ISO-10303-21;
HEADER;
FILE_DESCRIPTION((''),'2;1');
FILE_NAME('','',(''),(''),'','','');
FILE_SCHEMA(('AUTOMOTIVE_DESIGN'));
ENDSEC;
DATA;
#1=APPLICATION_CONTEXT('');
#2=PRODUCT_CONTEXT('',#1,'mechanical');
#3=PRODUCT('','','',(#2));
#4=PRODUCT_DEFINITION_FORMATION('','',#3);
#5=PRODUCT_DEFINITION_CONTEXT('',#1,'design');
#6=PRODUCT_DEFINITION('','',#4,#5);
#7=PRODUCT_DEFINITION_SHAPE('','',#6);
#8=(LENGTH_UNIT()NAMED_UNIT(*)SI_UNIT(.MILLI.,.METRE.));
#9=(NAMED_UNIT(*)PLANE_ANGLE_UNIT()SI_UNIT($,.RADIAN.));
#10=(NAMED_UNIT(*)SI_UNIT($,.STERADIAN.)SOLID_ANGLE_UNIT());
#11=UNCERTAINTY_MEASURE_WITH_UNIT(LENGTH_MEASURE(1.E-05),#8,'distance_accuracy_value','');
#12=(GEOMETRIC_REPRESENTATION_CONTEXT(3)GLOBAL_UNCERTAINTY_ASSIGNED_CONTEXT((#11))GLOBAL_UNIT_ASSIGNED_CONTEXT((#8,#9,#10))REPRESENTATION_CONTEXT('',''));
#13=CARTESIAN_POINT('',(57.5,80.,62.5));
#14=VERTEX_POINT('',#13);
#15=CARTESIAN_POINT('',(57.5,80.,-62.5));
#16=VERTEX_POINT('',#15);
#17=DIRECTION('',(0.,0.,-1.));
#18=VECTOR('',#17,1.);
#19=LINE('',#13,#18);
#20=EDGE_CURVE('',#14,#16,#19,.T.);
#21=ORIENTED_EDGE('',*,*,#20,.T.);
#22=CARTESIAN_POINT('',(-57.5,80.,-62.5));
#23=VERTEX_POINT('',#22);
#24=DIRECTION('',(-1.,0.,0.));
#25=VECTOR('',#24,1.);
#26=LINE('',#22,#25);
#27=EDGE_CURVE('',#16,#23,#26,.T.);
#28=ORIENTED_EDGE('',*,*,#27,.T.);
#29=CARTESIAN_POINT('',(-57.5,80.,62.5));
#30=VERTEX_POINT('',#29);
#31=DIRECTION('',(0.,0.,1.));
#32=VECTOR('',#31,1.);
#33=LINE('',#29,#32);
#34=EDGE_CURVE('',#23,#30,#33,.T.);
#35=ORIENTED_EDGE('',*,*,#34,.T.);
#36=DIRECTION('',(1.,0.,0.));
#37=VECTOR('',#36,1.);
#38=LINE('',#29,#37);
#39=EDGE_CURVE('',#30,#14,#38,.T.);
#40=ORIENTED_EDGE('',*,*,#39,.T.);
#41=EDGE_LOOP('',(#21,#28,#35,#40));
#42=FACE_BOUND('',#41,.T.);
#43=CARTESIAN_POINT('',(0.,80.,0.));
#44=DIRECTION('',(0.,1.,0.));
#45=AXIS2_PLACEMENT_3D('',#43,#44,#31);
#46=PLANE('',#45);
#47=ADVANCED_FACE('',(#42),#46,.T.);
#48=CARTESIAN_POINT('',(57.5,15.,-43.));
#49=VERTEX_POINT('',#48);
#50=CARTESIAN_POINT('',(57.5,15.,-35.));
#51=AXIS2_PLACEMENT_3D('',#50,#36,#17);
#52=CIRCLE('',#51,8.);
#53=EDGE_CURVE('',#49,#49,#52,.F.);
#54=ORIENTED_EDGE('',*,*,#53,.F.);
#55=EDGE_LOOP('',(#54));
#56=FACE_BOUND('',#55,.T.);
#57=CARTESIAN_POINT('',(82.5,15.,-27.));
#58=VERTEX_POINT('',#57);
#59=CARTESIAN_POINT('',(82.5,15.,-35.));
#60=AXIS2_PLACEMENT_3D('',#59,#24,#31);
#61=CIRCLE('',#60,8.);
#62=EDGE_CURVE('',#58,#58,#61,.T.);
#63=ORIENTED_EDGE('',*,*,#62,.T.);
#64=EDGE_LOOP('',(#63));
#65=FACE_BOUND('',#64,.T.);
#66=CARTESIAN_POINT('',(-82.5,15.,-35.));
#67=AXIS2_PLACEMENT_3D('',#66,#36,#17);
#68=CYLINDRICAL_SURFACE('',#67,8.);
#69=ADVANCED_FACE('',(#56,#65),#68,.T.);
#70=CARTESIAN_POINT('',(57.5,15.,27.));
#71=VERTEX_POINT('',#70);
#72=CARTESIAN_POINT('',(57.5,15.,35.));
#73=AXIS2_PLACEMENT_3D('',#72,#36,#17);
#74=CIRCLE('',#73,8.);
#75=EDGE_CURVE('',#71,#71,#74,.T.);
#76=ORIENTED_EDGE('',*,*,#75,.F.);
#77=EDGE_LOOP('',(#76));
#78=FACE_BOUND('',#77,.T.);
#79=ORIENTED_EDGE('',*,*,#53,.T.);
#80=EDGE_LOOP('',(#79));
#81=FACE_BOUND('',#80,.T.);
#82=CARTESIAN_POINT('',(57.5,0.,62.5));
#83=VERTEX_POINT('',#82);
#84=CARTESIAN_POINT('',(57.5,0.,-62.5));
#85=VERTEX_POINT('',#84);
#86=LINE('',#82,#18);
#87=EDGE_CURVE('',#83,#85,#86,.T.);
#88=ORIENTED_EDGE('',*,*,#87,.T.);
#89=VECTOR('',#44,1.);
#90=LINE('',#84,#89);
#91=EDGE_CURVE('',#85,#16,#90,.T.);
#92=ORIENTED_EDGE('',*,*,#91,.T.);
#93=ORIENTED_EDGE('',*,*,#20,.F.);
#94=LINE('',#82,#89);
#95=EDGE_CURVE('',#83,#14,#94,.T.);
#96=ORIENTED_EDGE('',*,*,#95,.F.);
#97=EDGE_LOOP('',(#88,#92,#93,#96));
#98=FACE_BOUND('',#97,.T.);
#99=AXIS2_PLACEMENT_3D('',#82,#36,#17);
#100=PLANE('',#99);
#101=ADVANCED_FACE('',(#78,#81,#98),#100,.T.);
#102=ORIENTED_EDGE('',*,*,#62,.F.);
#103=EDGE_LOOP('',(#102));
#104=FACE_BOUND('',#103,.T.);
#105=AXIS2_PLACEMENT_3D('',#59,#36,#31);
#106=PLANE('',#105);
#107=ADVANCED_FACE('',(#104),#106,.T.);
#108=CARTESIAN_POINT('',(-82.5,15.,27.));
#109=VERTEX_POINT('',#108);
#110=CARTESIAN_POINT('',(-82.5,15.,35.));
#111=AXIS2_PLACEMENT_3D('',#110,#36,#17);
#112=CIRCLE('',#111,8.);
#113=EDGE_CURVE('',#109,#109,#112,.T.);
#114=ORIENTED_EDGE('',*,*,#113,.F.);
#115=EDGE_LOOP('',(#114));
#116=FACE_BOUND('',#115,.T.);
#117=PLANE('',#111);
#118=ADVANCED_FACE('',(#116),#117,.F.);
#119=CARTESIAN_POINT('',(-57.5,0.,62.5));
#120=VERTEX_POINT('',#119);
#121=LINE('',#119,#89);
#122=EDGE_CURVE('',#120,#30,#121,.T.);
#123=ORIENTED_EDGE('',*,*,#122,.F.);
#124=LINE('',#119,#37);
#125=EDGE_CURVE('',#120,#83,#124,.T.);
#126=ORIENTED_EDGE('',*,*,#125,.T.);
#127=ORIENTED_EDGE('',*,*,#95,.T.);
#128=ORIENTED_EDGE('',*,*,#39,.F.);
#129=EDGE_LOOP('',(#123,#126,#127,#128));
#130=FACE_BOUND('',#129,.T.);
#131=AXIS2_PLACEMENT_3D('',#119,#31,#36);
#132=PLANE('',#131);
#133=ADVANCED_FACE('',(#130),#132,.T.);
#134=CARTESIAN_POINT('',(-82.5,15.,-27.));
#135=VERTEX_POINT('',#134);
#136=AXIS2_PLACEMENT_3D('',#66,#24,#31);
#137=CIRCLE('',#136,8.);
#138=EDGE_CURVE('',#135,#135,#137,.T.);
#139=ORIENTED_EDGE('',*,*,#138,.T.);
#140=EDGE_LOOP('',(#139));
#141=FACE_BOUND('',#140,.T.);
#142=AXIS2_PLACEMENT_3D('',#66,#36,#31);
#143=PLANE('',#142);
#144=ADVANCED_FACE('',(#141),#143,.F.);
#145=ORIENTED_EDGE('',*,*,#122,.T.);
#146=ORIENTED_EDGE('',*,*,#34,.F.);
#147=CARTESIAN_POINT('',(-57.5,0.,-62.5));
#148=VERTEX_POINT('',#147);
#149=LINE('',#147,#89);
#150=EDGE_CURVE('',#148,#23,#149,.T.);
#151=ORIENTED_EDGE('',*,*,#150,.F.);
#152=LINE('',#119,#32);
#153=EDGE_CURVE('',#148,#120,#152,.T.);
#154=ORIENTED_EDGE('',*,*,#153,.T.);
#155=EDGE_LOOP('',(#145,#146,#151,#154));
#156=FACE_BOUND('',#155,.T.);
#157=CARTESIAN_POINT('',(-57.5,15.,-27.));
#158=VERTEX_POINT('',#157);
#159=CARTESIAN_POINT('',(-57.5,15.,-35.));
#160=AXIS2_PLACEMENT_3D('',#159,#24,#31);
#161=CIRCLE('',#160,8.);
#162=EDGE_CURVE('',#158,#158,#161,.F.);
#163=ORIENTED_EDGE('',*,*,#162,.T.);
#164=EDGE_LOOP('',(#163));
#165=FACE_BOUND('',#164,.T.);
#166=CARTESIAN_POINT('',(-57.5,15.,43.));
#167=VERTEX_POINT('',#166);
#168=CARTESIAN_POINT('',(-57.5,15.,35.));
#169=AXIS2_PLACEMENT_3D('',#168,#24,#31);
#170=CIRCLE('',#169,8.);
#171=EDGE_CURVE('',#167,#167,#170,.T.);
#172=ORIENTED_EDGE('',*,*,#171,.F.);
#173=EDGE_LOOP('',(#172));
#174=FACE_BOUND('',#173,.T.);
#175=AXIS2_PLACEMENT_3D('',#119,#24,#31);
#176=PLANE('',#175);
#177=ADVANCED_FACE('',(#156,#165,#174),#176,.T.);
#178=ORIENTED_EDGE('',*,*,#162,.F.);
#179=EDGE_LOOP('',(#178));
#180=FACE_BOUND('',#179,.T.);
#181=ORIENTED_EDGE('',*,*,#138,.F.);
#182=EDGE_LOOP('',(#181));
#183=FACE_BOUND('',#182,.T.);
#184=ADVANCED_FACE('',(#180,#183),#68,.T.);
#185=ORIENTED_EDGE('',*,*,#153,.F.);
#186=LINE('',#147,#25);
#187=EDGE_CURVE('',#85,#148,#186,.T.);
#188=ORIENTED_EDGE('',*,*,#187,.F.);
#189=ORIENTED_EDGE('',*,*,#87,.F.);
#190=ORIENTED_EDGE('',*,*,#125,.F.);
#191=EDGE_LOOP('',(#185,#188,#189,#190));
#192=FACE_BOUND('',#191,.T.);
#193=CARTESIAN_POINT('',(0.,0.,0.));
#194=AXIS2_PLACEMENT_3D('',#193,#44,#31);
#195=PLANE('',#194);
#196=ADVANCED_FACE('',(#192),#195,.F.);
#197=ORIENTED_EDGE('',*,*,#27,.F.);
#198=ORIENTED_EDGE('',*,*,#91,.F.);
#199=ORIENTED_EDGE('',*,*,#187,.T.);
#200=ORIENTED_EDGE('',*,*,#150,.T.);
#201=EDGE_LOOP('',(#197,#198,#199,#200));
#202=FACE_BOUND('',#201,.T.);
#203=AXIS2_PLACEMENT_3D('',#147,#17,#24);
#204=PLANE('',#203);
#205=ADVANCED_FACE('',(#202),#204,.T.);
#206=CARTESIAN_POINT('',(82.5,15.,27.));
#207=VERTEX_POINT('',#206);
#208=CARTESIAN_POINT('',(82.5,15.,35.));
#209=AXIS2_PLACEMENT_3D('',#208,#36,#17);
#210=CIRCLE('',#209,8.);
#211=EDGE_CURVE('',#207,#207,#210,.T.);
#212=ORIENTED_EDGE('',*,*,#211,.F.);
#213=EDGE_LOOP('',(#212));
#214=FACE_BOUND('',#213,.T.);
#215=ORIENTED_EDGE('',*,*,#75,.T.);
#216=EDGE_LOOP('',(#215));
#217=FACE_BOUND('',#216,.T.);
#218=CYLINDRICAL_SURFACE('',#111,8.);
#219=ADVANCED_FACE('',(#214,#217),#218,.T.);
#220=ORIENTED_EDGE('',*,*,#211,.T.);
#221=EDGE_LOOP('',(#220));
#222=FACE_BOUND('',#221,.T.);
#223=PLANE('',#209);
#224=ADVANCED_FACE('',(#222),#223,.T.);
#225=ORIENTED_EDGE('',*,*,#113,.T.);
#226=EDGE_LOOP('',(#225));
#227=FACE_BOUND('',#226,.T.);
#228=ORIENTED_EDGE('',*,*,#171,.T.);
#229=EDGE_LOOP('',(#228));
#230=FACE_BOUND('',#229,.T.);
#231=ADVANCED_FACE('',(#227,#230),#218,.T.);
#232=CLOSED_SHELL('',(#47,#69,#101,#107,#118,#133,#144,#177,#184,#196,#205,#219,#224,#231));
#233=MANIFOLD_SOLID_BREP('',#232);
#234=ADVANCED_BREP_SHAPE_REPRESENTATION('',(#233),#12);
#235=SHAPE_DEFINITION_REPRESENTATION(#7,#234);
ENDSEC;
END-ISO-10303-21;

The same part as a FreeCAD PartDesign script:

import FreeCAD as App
import Part
import Sketcher

doc = App.newDocument("Part")
body = doc.addObject("PartDesign::Body", "Body")

# Sketch on XZ plane
sketch1 = body.newObject("Sketcher::SketchObject", "Sketch")
sketch1.AttachmentSupport = (doc.getObject("XZ_Plane"), [""])
sketch1.MapMode = "FlatFace"
sketch1.addGeometry([
    Part.LineSegment(App.Vector(58, 62, 0), App.Vector(-58, 62, 0)),
    Part.LineSegment(App.Vector(-58, 62, 0), App.Vector(-58, -63, 0)),
    Part.LineSegment(App.Vector(-58, -63, 0), App.Vector(58, -63, 0)),
    Part.LineSegment(App.Vector(58, -63, 0), App.Vector(58, 62, 0)),
], False)
sketch1.addConstraint([
    Sketcher.Constraint("Coincident", 0, 2, 1, 1),
    Sketcher.Constraint("Coincident", 1, 2, 2, 1),
    Sketcher.Constraint("Coincident", 2, 2, 3, 1),
    Sketcher.Constraint("Coincident", 3, 2, 0, 1),
    Sketcher.Constraint("Horizontal", 0),
    Sketcher.Constraint("Vertical", 1),
    Sketcher.Constraint("Horizontal", 2),
    Sketcher.Constraint("Vertical", 3),
    Sketcher.Constraint("Symmetric", 0, 2, 2, 2, -1, 1),
    Sketcher.Constraint("DistanceX", 0, 2, 0, 1, 115.0),
    Sketcher.Constraint("DistanceY", 1, 2, 1, 1, 125.0),
])
pad1 = body.newObject("PartDesign::Pad", "Pad")
pad1.Profile = sketch1
pad1.Length = 80
pad1.Reversed = True

# Sketch on YZ plane
sketch2 = body.newObject("Sketcher::SketchObject", "Sketch001")
sketch2.AttachmentSupport = (doc.getObject("YZ_Plane"), [""])
sketch2.MapMode = "FlatFace"
sketch2.addGeometry(Part.Circle(App.Vector(15, 35, 0), App.Vector(0, 0, 1), 8), False)
sketch2.addConstraint([
    Sketcher.Constraint("Diameter", 0, 16.0),
    Sketcher.Constraint("DistanceX", -1, 1, 0, 3, 15.0),
    Sketcher.Constraint("DistanceY", -1, 1, 0, 3, 35.0),
])
pad2 = body.newObject("PartDesign::Pad", "Pad001")
pad2.Profile = sketch2
pad2.Length = 165
pad2.Midplane = True
doc.recompute()

mirrored = body.newObject("PartDesign::Mirrored", "Mirrored")
mirrored.Originals = [pad2]
mirrored.MirrorPlane = (doc.getObject("XY_Plane"), [""])
body.Tip = mirrored

doc.recompute()
